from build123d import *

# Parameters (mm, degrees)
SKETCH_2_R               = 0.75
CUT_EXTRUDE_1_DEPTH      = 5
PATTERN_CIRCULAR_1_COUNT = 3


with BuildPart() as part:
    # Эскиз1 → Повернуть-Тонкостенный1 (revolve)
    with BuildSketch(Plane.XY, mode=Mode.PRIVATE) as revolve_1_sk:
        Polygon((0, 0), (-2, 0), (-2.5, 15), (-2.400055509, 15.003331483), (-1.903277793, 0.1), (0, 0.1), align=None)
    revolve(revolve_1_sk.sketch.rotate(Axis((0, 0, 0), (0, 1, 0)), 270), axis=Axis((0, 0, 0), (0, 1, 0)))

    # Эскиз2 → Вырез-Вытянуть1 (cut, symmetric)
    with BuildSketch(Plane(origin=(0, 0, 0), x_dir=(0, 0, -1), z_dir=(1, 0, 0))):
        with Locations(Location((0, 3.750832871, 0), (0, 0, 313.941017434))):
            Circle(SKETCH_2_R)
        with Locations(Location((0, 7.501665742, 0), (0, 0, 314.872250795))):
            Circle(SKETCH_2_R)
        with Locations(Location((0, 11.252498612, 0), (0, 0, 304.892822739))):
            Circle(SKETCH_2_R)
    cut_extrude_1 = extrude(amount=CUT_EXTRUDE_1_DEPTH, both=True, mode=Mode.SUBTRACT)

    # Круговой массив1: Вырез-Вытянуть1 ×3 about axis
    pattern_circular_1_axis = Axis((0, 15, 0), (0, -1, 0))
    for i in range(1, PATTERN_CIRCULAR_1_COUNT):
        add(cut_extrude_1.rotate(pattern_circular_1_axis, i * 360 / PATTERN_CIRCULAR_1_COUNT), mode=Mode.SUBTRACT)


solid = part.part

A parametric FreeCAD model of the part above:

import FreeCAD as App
import Part
import Sketcher


def add_polygon(sketch, points):
    """Adds a closed chain of lines whose ends are joined by coincident constraints."""
    first, n = sketch.GeometryCount, len(points)
    for a, b in zip(points, points[1:] + points[:1]):
        sketch.addGeometry(Part.LineSegment(App.Vector(*a, 0), App.Vector(*b, 0)), False)
    for i in range(n):
        sketch.addConstraint(Sketcher.Constraint("Coincident", first + i, 2, first + (i + 1) % n, 1))

doc = App.newDocument("Part")
body = doc.addObject("PartDesign::Body", "Body")

# Sketch on XY plane
sketch1 = doc.addObject("Sketcher::SketchObject", "Sketch")
body.addObject(sketch1)
sketch1.AttachmentSupport = (doc.XY_Plane, [""])
sketch1.MapMode = "FlatFace"
add_polygon(sketch1, [(-2, 0), (0, 0), (0, 0.1), (-1.9, 0.1), (-2.4, 15), (-2.5, 15)])  # lines 0-5
sketch1.addConstraint([
    Sketcher.Constraint("Horizontal", 0),
    Sketcher.Constraint("Vertical", 1),
    Sketcher.Constraint("Horizontal", 2),
    Sketcher.Constraint("Coincident", 0, 2, -1, 1),
    Sketcher.Constraint("Perpendicular", 3, 4),
    Sketcher.Constraint("Perpendicular", 4, 5),
    Sketcher.Constraint("DistanceX", 0, 1, 0, 2, 2.0),
    Sketcher.Constraint("DistanceY", 1, 1, 1, 2, 0.1),
    Sketcher.Constraint("DistanceY", -1, 1, 4, 2, 15.0),
    Sketcher.Constraint("Distance", 4, 0.1),
    Sketcher.Constraint("DistanceX", 4, 2, -1, 1, 2.5),
])
revolution = doc.addObject("PartDesign::Revolution", "Revolution")
body.addObject(revolution)
revolution.Profile = sketch1
revolution.ReferenceAxis = (sketch1, ["V_Axis"])
revolution.Angle = 360

# Sketch on YZ plane
sketch2 = doc.addObject("Sketcher::SketchObject", "Sketch001")
body.addObject(sketch2)
sketch2.AttachmentSupport = (doc.YZ_Plane, [""])
sketch2.MapMode = "FlatFace"
sketch2.addGeometry([
    Part.Circle(App.Vector(3.8, 0, 0), App.Vector(0, 0, 1), 0.8),
    Part.Circle(App.Vector(7.5, 0, 0), App.Vector(0, 0, 1), 0.8),
    Part.Circle(App.Vector(11.3, 0, 0), App.Vector(0, 0, 1), 0.8),
], False)
sketch2.addConstraint([
    Sketcher.Constraint("Equal", 0, 1),
    Sketcher.Constraint("Equal", 1, 2),
    Sketcher.Constraint("PointOnObject", 0, 3, -1),
    Sketcher.Constraint("PointOnObject", 1, 3, -1),
    Sketcher.Constraint("PointOnObject", 2, 3, -1),
    Sketcher.Constraint("Diameter", 0, 1.5),
    Sketcher.Constraint("DistanceX", -1, 1, 2, 3, 11.252499),
    Sketcher.Constraint("DistanceX", -1, 1, 0, 3, 3.750833),
    Sketcher.Constraint("DistanceX", -1, 1, 1, 3, 7.501666),
])
pocket1 = doc.addObject("PartDesign::Pocket", "Pocket")
body.addObject(pocket1)
pocket1.Profile = sketch2
pocket1.Length = 10
pocket1.Midplane = True
doc.recompute()

polarpattern = doc.addObject("PartDesign::PolarPattern", "PolarPattern")
body.addObject(polarpattern)
polarpattern.Originals = [pocket1]
polarpattern.Axis = (doc.Y_Axis, [""])
polarpattern.Angle = 360
polarpattern.Occurrences = 3
body.Tip = polarpattern

doc.recompute()
